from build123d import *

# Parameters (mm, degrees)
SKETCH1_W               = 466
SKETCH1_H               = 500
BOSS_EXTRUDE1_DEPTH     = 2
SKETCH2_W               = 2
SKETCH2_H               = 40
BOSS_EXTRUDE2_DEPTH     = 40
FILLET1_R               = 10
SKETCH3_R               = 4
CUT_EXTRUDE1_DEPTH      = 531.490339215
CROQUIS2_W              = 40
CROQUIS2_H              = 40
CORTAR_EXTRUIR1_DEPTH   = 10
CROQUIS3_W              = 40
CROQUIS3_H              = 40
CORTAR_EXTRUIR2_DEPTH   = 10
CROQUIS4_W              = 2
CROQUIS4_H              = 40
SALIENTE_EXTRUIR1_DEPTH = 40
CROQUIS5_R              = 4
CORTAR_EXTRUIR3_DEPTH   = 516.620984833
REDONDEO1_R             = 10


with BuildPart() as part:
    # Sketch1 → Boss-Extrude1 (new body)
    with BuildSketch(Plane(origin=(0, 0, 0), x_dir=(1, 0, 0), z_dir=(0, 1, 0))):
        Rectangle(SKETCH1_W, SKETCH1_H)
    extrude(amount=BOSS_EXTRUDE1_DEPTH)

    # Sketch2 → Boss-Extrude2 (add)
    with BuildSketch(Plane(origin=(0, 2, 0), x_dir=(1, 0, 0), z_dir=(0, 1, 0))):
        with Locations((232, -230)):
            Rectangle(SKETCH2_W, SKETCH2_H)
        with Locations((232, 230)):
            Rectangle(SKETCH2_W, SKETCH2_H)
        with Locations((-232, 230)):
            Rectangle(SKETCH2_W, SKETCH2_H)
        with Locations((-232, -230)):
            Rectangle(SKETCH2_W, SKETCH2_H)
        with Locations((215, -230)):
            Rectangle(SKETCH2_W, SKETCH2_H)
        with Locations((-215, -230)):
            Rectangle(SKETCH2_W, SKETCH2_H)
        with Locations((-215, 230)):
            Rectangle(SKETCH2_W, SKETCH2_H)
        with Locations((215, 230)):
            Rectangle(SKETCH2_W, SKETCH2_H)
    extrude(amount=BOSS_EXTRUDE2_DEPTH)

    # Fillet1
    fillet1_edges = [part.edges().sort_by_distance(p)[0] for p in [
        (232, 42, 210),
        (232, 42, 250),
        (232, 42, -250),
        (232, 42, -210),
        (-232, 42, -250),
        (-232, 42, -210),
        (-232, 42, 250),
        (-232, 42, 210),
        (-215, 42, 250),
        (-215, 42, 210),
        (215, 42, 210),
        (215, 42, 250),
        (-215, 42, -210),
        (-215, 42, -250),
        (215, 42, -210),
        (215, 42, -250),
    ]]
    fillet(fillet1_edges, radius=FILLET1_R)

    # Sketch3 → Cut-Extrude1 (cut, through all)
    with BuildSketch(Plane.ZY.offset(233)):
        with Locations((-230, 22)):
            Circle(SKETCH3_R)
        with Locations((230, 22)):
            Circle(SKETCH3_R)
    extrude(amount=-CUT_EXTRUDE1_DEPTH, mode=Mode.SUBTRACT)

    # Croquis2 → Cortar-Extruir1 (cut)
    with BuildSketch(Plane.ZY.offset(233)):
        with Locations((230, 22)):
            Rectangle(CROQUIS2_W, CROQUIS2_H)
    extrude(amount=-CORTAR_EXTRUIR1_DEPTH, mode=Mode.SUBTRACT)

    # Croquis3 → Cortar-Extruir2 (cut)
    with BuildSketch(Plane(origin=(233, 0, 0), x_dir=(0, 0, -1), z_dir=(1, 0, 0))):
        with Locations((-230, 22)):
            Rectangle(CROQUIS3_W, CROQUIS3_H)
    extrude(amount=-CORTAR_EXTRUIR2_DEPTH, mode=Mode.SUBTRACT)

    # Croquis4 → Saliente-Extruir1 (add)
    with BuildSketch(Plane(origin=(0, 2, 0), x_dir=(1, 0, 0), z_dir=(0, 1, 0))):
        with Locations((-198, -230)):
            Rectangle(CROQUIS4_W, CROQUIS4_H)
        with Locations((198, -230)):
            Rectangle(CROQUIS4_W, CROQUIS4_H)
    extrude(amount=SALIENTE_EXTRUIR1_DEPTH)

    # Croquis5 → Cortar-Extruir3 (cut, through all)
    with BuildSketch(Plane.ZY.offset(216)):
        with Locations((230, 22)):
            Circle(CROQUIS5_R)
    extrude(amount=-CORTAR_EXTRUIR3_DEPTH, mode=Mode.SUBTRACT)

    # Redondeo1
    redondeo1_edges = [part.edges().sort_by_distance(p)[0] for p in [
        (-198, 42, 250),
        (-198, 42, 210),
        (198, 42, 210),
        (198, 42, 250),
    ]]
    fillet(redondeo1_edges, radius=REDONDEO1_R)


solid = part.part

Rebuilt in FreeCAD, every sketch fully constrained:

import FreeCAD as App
import Part
import Sketcher

V = App.Vector


def edges_at(feature, points):
    """Names of the edges that pass closest to the given points."""
    edges = feature.Shape.Edges
    near = lambda p: min(range(len(edges)), key=lambda i: edges[i].distToShape(Part.Vertex(*p))[0])
    return sorted({f"Edge{near(p) + 1}" for p in points})

doc = App.newDocument("Part")
body = doc.addObject("PartDesign::Body", "Body")

# Sketch on XZ plane
sketch1 = body.newObject("Sketcher::SketchObject", "Sketch")
sketch1.AttachmentSupport = (doc.getObject("XZ_Plane"), [""])
sketch1.MapMode = "FlatFace"
sketch1.addGeometry([
    Part.LineSegment(V(-233, -250, 0), V(-233, 250, 0)),
    Part.LineSegment(V(-233, 250, 0), V(233, 250, 0)),
    Part.LineSegment(V(233, 250, 0), V(233, -250, 0)),
    Part.LineSegment(V(233, -250, 0), V(-233, -250, 0)),
], False)
sketch1.addConstraint([
    Sketcher.Constraint("Coincident", 0, 2, 1, 1),
    Sketcher.Constraint("Coincident", 1, 2, 2, 1),
    Sketcher.Constraint("Coincident", 2, 2, 3, 1),
    Sketcher.Constraint("Coincident", 3, 2, 0, 1),
    Sketcher.Constraint("Vertical", 0),
    Sketcher.Constraint("Horizontal", 1),
    Sketcher.Constraint("Vertical", 2),
    Sketcher.Constraint("Horizontal", 3),
    Sketcher.Constraint("Symmetric", 0, 2, 2, 2, -1, 1),
    Sketcher.Constraint("DistanceX", 1, 1, 1, 2, 466.0),
    Sketcher.Constraint("DistanceY", 0, 1, 0, 2, 500.0),
])
pad1 = body.newObject("PartDesign::Pad", "Pad")
pad1.Profile = sketch1
pad1.Length = 2
pad1.Reversed = True

# Sketch on XZ plane
sketch2 = body.newObject("Sketcher::SketchObject", "Sketch001")
sketch2.AttachmentSupport = (doc.getObject("XZ_Plane"), [""])
sketch2.MapMode = "FlatFace"
sketch2.AttachmentOffset = App.Placement(V(0, 0, -2), App.Rotation())
sketch2.addGeometry([
    Part.LineSegment(V(231, 210, 0), V(231, 250, 0)),  # 0
    Part.LineSegment(V(231, 250, 0), V(233, 250, 0)),  # 1
    Part.LineSegment(V(233, 250, 0), V(233, 210, 0)),  # 2
    Part.LineSegment(V(233, 210, 0), V(231, 210, 0)),  # 3
    Part.LineSegment(V(231, -250, 0), V(231, -210, 0)),  # 4
    Part.LineSegment(V(231, -210, 0), V(233, -210, 0)),  # 5
    Part.LineSegment(V(233, -210, 0), V(233, -250, 0)),  # 6
    Part.LineSegment(V(233, -250, 0), V(231, -250, 0)),  # 7
    Part.LineSegment(V(-233, -250, 0), V(-233, -210, 0)),  # 8
    Part.LineSegment(V(-233, -210, 0), V(-231, -210, 0)),  # 9
    Part.LineSegment(V(-231, -210, 0), V(-231, -250, 0)),  # 10
    Part.LineSegment(V(-231, -250, 0), V(-233, -250, 0)),  # 11
    Part.LineSegment(V(-233, 210, 0), V(-233, 250, 0)),  # 12
    Part.LineSegment(V(-233, 250, 0), V(-231, 250, 0)),  # 13
    Part.LineSegment(V(-231, 250, 0), V(-231, 210, 0)),  # 14
    Part.LineSegment(V(-231, 210, 0), V(-233, 210, 0)),  # 15
    Part.LineSegment(V(214, 210, 0), V(214, 250, 0)),  # 16
    Part.LineSegment(V(214, 250, 0), V(216, 250, 0)),  # 17
    Part.LineSegment(V(216, 250, 0), V(216, 210, 0)),  # 18
    Part.LineSegment(V(216, 210, 0), V(214, 210, 0)),  # 19
    Part.LineSegment(V(-216, 210, 0), V(-216, 250, 0)),  # 20
    Part.LineSegment(V(-216, 250, 0), V(-214, 250, 0)),  # 21
    Part.LineSegment(V(-214, 250, 0), V(-214, 210, 0)),  # 22
    Part.LineSegment(V(-214, 210, 0), V(-216, 210, 0)),  # 23
    Part.LineSegment(V(-216, -250, 0), V(-216, -210, 0)),  # 24
    Part.LineSegment(V(-216, -210, 0), V(-214, -210, 0)),  # 25
    Part.LineSegment(V(-214, -210, 0), V(-214, -250, 0)),  # 26
    Part.LineSegment(V(-214, -250, 0), V(-216, -250, 0)),  # 27
    Part.LineSegment(V(214, -250, 0), V(214, -210, 0)),  # 28
    Part.LineSegment(V(214, -210, 0), V(216, -210, 0)),  # 29
    Part.LineSegment(V(216, -210, 0), V(216, -250, 0)),  # 30
    Part.LineSegment(V(216, -250, 0), V(214, -250, 0)),  # 31
], False)
sketch2.addConstraint([
    Sketcher.Constraint("Coincident", 0, 2, 1, 1),
    Sketcher.Constraint("Coincident", 1, 2, 2, 1),
    Sketcher.Constraint("Coincident", 2, 2, 3, 1),
    Sketcher.Constraint("Coincident", 3, 2, 0, 1),
    Sketcher.Constraint("Coincident", 4, 2, 5, 1),
    Sketcher.Constraint("Coincident", 5, 2, 6, 1),
    Sketcher.Constraint("Coincident", 6, 2, 7, 1),
    Sketcher.Constraint("Coincident", 7, 2, 4, 1),
    Sketcher.Constraint("Coincident", 8, 2, 9, 1),
    Sketcher.Constraint("Coincident", 9, 2, 10, 1),
    Sketcher.Constraint("Coincident", 10, 2, 11, 1),
    Sketcher.Constraint("Coincident", 11, 2, 8, 1),
    Sketcher.Constraint("Coincident", 12, 2, 13, 1),
    Sketcher.Constraint("Coincident", 13, 2, 14, 1),
    Sketcher.Constraint("Coincident", 14, 2, 15, 1),
    Sketcher.Constraint("Coincident", 15, 2, 12, 1),
    Sketcher.Constraint("Coincident", 16, 2, 17, 1),
    Sketcher.Constraint("Coincident", 17, 2, 18, 1),
    Sketcher.Constraint("Coincident", 18, 2, 19, 1),
    Sketcher.Constraint("Coincident", 19, 2, 16, 1),
    Sketcher.Constraint("Coincident", 20, 2, 21, 1),
    Sketcher.Constraint("Coincident", 21, 2, 22, 1),
    Sketcher.Constraint("Coincident", 22, 2, 23, 1),
    Sketcher.Constraint("Coincident", 23, 2, 20, 1),
    Sketcher.Constraint("Coincident", 24, 2, 25, 1),
    Sketcher.Constraint("Coincident", 25, 2, 26, 1),
    Sketcher.Constraint("Coincident", 26, 2, 27, 1),
    Sketcher.Constraint("Coincident", 27, 2, 24, 1),
    Sketcher.Constraint("Coincident", 28, 2, 29, 1),
    Sketcher.Constraint("Coincident", 29, 2, 30, 1),
    Sketcher.Constraint("Coincident", 30, 2, 31, 1),
    Sketcher.Constraint("Coincident", 31, 2, 28, 1),
    Sketcher.Constraint("Vertical", 0),
    Sketcher.Constraint("Horizontal", 1),
    Sketcher.Constraint("Vertical", 2),
    Sketcher.Constraint("Horizontal", 3),
    Sketcher.Constraint("Vertical", 4),
    Sketcher.Constraint("Horizontal", 5),
    Sketcher.Constraint("Vertical", 6),
    Sketcher.Constraint("Horizontal", 7),
    Sketcher.Constraint("Vertical", 8),
    Sketcher.Constraint("Horizontal", 9),
    Sketcher.Constraint("Vertical", 10),
    Sketcher.Constraint("Horizontal", 11),
    Sketcher.Constraint("Vertical", 12),
    Sketcher.Constraint("Horizontal", 13),
    Sketcher.Constraint("Vertical", 14),
    Sketcher.Constraint("Horizontal", 15),
    Sketcher.Constraint("Vertical", 16),
    Sketcher.Constraint("Horizontal", 17),
    Sketcher.Constraint("Vertical", 18),
    Sketcher.Constraint("Horizontal", 19),
    Sketcher.Constraint("Vertical", 20),
    Sketcher.Constraint("Horizontal", 21),
    Sketcher.Constraint("Vertical", 22),
    Sketcher.Constraint("Horizontal", 23),
    Sketcher.Constraint("Vertical", 24),
    Sketcher.Constraint("Horizontal", 25),
    Sketcher.Constraint("Vertical", 26),
    Sketcher.Constraint("Horizontal", 27),
    Sketcher.Constraint("Vertical", 28),
    Sketcher.Constraint("Horizontal", 29),
    Sketcher.Constraint("Vertical", 30),
    Sketcher.Constraint("Horizontal", 31),
    Sketcher.Constraint("Symmetric", 2, 2, 8, 2, -1, 1),
    Sketcher.Constraint("Symmetric", 0, 2, 10, 2, -1, 1),
    Sketcher.Constraint("Symmetric", 6, 2, 12, 2, -1, 1),
    Sketcher.Constraint("Symmetric", 4, 2, 14, 2, -1, 1),
    Sketcher.Constraint("Symmetric", 18, 2, 24, 2, -1, 1),
    Sketcher.Constraint("Symmetric", 16, 2, 26, 2, -1, 1),
    Sketcher.Constraint("Symmetric", 22, 2, 28, 2, -1, 1),
    Sketcher.Constraint("Symmetric", 20, 2, 30, 2, -1, 1),
    Sketcher.Constraint("Symmetric", 5, 2, 8, 2, -2),
    Sketcher.Constraint("Symmetric", 7, 2, 10, 2, -2),
    Sketcher.Constraint("Symmetric", 17, 2, 20, 2, -2),
    Sketcher.Constraint("Symmetric", 19, 2, 22, 2, -2),
    Sketcher.Constraint("Horizontal", 13, 2, 16, 2),
    Sketcher.Constraint("Horizontal", 15, 2, 18, 2),
    Sketcher.Constraint("Equal", 15, 17),
    Sketcher.Constraint("DistanceX", 1, 1, 1, 2, 2.0),
    Sketcher.Constraint("DistanceY", 0, 1, 0, 2, 40.0),
    Sketcher.Constraint("DistanceX", -1, 1, 0, 2, 231.0),
    Sketcher.Constraint("DistanceY", -1, 1, 0, 2, 250.0),
    Sketcher.Constraint("DistanceX", -1, 1, 16, 2, 214.0),
])
pad2 = body.newObject("PartDesign::Pad", "Pad001")
pad2.Profile = sketch2
pad2.Length = 40
pad2.Reversed = True
doc.recompute()

fillet = body.newObject("PartDesign::Fillet", "Fillet")
fillet.Base = (pad2, edges_at(pad2, [
    (232, 42, 210),
    (232, 42, 250),
    (232, 42, -250),
    (232, 42, -210),
    (-232, 42, -250),
    (-232, 42, -210),
    (-232, 42, 250),
    (-232, 42, 210),
    (-215, 42, 250),
    (-215, 42, 210),
    (215, 42, 210),
    (215, 42, 250),
    (-215, 42, -210),
    (-215, 42, -250),
    (215, 42, -210),
    (215, 42, -250),
]))
fillet.Radius = 10

# Sketch on YZ plane
sketch3 = body.newObject("Sketcher::SketchObject", "Sketch002")
sketch3.AttachmentSupport = (doc.getObject("YZ_Plane"), [""])
sketch3.MapMode = "FlatFace"
sketch3.AttachmentOffset = App.Placement(V(0, 0, -233), App.Rotation())
sketch3.addGeometry([
    Part.Circle(V(22, -230, 0), V(0, 0, 1), 4),
    Part.Circle(V(22, 230, 0), V(0, 0, 1), 4),
], False)
sketch3.addConstraint([
    Sketcher.Constraint("Equal", 0, 1),
    Sketcher.Constraint("Symmetric", 0, 3, 1, 3, -1),
    Sketcher.Constraint("Diameter", 0, 8.0),
    Sketcher.Constraint("DistanceX", -1, 1, 0, 3, 22.0),
    Sketcher.Constraint("DistanceY", 0, 3, -1, 1, 230.0),
])
pocket1 = body.newObject("PartDesign::Pocket", "Pocket")
pocket1.Profile = sketch3
pocket1.Type = "ThroughAll"
pocket1.Reversed = True

# Sketch on YZ plane
sketch4 = body.newObject("Sketcher::SketchObject", "Sketch003")
sketch4.AttachmentSupport = (doc.getObject("YZ_Plane"), [""])
sketch4.MapMode = "FlatFace"
sketch4.AttachmentOffset = App.Placement(V(0, 0, -233), App.Rotation())
sketch4.addGeometry([
    Part.LineSegment(V(42, 210, 0), V(2, 210, 0)),
    Part.LineSegment(V(2, 210, 0), V(2, 250, 0)),
    Part.LineSegment(V(2, 250, 0), V(42, 250, 0)),
    Part.LineSegment(V(42, 250, 0), V(42, 210, 0)),
], False)
sketch4.addConstraint([
    Sketcher.Constraint("Coincident", 0, 2, 1, 1),
    Sketcher.Constraint("Coincident", 1, 2, 2, 1),
    Sketcher.Constraint("Coincident", 2, 2, 3, 1),
    Sketcher.Constraint("Coincident", 3, 2, 0, 1),
    Sketcher.Constraint("Horizontal", 0),
    Sketcher.Constraint("Vertical", 1),
    Sketcher.Constraint("Horizontal", 2),
    Sketcher.Constraint("Vertical", 3),
    Sketcher.Constraint("Equal", 2, 1),
    Sketcher.Constraint("DistanceX", 0, 2, 0, 1, 40.0),
    Sketcher.Constraint("DistanceX", -1, 1, 0, 2, 2.0),
    Sketcher.Constraint("DistanceY", -1, 1, 0, 2, 210.0),
])
pocket2 = body.newObject("PartDesign::Pocket", "Pocket001")
pocket2.Profile = sketch4
pocket2.Length = 10
pocket2.Reversed = True

# Sketch on YZ plane
sketch5 = body.newObject("Sketcher::SketchObject", "Sketch004")
sketch5.AttachmentSupport = (doc.getObject("YZ_Plane"), [""])
sketch5.MapMode = "FlatFace"
sketch5.AttachmentOffset = App.Placement(V(0, 0, 233), App.Rotation())
sketch5.addGeometry([
    Part.LineSegment(V(42, 250, 0), V(2, 250, 0)),
    Part.LineSegment(V(2, 250, 0), V(2, 210, 0)),
    Part.LineSegment(V(2, 210, 0), V(42, 210, 0)),
    Part.LineSegment(V(42, 210, 0), V(42, 250, 0)),
], False)
sketch5.addConstraint([
    Sketcher.Constraint("Coincident", 0, 2, 1, 1),
    Sketcher.Constraint("Coincident", 1, 2, 2, 1),
    Sketcher.Constraint("Coincident", 2, 2, 3, 1),
    Sketcher.Constraint("Coincident", 3, 2, 0, 1),
    Sketcher.Constraint("Horizontal", 0),
    Sketcher.Constraint("Vertical", 1),
    Sketcher.Constraint("Horizontal", 2),
    Sketcher.Constraint("Vertical", 3),
    Sketcher.Constraint("Equal", 2, 1),
    Sketcher.Constraint("DistanceX", 0, 2, 0, 1, 40.0),
    Sketcher.Constraint("DistanceX", -1, 1, 0, 2, 2.0),
    Sketcher.Constraint("DistanceY", -1, 1, 0, 2, 250.0),
])
pocket3 = body.newObject("PartDesign::Pocket", "Pocket002")
pocket3.Profile = sketch5
pocket3.Length = 10

# Sketch on XZ plane
sketch6 = body.newObject("Sketcher::SketchObject", "Sketch005")
sketch6.AttachmentSupport = (doc.getObject("XZ_Plane"), [""])
sketch6.MapMode = "FlatFace"
sketch6.AttachmentOffset = App.Placement(V(0, 0, -2), App.Rotation())
sketch6.addGeometry([
    Part.LineSegment(V(-199, 210, 0), V(-199, 250, 0)),  # 0
    Part.LineSegment(V(-199, 250, 0), V(-197, 250, 0)),  # 1
    Part.LineSegment(V(-197, 250, 0), V(-197, 210, 0)),  # 2
    Part.LineSegment(V(-197, 210, 0), V(-199, 210, 0)),  # 3
    Part.LineSegment(V(197, 210, 0), V(197, 250, 0)),  # 4
    Part.LineSegment(V(197, 250, 0), V(199, 250, 0)),  # 5
    Part.LineSegment(V(199, 250, 0), V(199, 210, 0)),  # 6
    Part.LineSegment(V(199, 210, 0), V(197, 210, 0)),  # 7
], False)
sketch6.addConstraint([
    Sketcher.Constraint("Coincident", 0, 2, 1, 1),
    Sketcher.Constraint("Coincident", 1, 2, 2, 1),
    Sketcher.Constraint("Coincident", 2, 2, 3, 1),
    Sketcher.Constraint("Coincident", 3, 2, 0, 1),
    Sketcher.Constraint("Coincident", 4, 2, 5, 1),
    Sketcher.Constraint("Coincident", 5, 2, 6, 1),
    Sketcher.Constraint("Coincident", 6, 2, 7, 1),
    Sketcher.Constraint("Coincident", 7, 2, 4, 1),
    Sketcher.Constraint("Vertical", 0),
    Sketcher.Constraint("Horizontal", 1),
    Sketcher.Constraint("Vertical", 2),
    Sketcher.Constraint("Horizontal", 3),
    Sketcher.Constraint("Vertical", 4),
    Sketcher.Constraint("Horizontal", 5),
    Sketcher.Constraint("Vertical", 6),
    Sketcher.Constraint("Horizontal", 7),
    Sketcher.Constraint("Symmetric", 1, 2, 4, 2, -2),
    Sketcher.Constraint("Symmetric", 3, 2, 6, 2, -2),
    Sketcher.Constraint("DistanceX", 1, 1, 1, 2, 2.0),
    Sketcher.Constraint("DistanceY", 0, 1, 0, 2, 40.0),
    Sketcher.Constraint("DistanceX", 0, 2, -1, 1, 199.0),
    Sketcher.Constraint("DistanceY", -1, 1, 0, 2, 250.0),
])
pad3 = body.newObject("PartDesign::Pad", "Pad002")
pad3.Profile = sketch6
pad3.Length = 40
pad3.Reversed = True

# Sketch on YZ plane
sketch7 = body.newObject("Sketcher::SketchObject", "Sketch006")
sketch7.AttachmentSupport = (doc.getObject("YZ_Plane"), [""])
sketch7.MapMode = "FlatFace"
sketch7.AttachmentOffset = App.Placement(V(0, 0, -216), App.Rotation())
sketch7.addGeometry(Part.Circle(V(22, 230, 0), V(0, 0, 1), 4), False)
sketch7.addConstraint([
    Sketcher.Constraint("Diameter", 0, 8.0),
    Sketcher.Constraint("DistanceX", -1, 1, 0, 3, 22.0),
    Sketcher.Constraint("DistanceY", -1, 1, 0, 3, 230.0),
])
pocket4 = body.newObject("PartDesign::Pocket", "Pocket003")
pocket4.Profile = sketch7
pocket4.Type = "ThroughAll"
pocket4.Reversed = True
doc.recompute()

fillet2 = body.newObject("PartDesign::Fillet", "Fillet001")
fillet2.Base = (pocket4, edges_at(pocket4, [
    (-198, 42, 250),
    (-198, 42, 210),
    (198, 42, 210),
    (198, 42, 250),
]))
fillet2.Radius = 10

doc.recompute()
